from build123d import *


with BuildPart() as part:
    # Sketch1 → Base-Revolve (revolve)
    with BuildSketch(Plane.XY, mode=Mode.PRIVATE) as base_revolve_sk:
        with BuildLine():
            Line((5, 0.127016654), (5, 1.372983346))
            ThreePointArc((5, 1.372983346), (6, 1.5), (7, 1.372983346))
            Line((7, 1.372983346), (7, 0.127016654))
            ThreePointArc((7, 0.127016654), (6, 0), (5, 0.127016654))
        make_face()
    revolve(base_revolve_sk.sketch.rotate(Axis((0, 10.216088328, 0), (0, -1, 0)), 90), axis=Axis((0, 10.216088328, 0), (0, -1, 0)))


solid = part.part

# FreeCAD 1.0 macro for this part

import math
import FreeCAD as App
import Part
import Sketcher
from FreeCAD import Vector
Q = App.Units.Quantity

doc = App.newDocument("Part")
body = doc.addObject("PartDesign::Body", "Body")

# Sketch on XY plane
sketch1 = body.newObject("Sketcher::SketchObject", "Sketch")
sketch1.AttachmentSupport = (doc.getObject("XY_Plane"), [""])
sketch1.MapMode = "FlatFace"
sketch1.addGeometry([
    Part.LineSegment(Vector(5, 1.4, 0), Vector(5, 0.1, 0)),
    Part.ArcOfCircle(Part.Circle(Vector(6, 4, 0), Vector(0, 0, 1), 4), math.radians(-104), math.radians(-76)),
    Part.LineSegment(Vector(7, 0.1, 0), Vector(7, 1.4, 0)),
    Part.ArcOfCircle(Part.Circle(Vector(6, -2.5, 0), Vector(0, 0, 1), 4), math.radians(76), math.radians(104)),
], False)
sketch1.addConstraint([
    Sketcher.Constraint("Coincident", 0, 2, 1, 1),
    Sketcher.Constraint("Coincident", 1, 2, 2, 1),
    Sketcher.Constraint("Coincident", 2, 2, 3, 1),
    Sketcher.Constraint("Coincident", 3, 2, 0, 1),
    Sketcher.Constraint("Vertical", 0),
    Sketcher.Constraint("Vertical", 2),
    Sketcher.Constraint("Equal", 1, 3),
    Sketcher.Constraint("Horizontal", 0, 2, 1, 2),
    Sketcher.Constraint("Horizontal", 2, 2, 3, 2),
    Sketcher.Constraint("Radius", 1, Q("4 mm")),
    Sketcher.Constraint("DistanceX", -1, 1, 1, 3, Q("6 mm")),
    Sketcher.Constraint("DistanceY", -1, 1, 1, 3, Q("4 mm")),
    Sketcher.Constraint("DistanceX", -1, 1, 0, 2, Q("5 mm")),
    Sketcher.Constraint("DistanceY", 3, 3, -1, 1, Q("2.5 mm")),
])
revolution = body.newObject("PartDesign::Revolution", "Revolution")
revolution.Profile = sketch1
revolution.ReferenceAxis = (sketch1, ["V_Axis"])
revolution.Angle = 360

doc.recompute()
